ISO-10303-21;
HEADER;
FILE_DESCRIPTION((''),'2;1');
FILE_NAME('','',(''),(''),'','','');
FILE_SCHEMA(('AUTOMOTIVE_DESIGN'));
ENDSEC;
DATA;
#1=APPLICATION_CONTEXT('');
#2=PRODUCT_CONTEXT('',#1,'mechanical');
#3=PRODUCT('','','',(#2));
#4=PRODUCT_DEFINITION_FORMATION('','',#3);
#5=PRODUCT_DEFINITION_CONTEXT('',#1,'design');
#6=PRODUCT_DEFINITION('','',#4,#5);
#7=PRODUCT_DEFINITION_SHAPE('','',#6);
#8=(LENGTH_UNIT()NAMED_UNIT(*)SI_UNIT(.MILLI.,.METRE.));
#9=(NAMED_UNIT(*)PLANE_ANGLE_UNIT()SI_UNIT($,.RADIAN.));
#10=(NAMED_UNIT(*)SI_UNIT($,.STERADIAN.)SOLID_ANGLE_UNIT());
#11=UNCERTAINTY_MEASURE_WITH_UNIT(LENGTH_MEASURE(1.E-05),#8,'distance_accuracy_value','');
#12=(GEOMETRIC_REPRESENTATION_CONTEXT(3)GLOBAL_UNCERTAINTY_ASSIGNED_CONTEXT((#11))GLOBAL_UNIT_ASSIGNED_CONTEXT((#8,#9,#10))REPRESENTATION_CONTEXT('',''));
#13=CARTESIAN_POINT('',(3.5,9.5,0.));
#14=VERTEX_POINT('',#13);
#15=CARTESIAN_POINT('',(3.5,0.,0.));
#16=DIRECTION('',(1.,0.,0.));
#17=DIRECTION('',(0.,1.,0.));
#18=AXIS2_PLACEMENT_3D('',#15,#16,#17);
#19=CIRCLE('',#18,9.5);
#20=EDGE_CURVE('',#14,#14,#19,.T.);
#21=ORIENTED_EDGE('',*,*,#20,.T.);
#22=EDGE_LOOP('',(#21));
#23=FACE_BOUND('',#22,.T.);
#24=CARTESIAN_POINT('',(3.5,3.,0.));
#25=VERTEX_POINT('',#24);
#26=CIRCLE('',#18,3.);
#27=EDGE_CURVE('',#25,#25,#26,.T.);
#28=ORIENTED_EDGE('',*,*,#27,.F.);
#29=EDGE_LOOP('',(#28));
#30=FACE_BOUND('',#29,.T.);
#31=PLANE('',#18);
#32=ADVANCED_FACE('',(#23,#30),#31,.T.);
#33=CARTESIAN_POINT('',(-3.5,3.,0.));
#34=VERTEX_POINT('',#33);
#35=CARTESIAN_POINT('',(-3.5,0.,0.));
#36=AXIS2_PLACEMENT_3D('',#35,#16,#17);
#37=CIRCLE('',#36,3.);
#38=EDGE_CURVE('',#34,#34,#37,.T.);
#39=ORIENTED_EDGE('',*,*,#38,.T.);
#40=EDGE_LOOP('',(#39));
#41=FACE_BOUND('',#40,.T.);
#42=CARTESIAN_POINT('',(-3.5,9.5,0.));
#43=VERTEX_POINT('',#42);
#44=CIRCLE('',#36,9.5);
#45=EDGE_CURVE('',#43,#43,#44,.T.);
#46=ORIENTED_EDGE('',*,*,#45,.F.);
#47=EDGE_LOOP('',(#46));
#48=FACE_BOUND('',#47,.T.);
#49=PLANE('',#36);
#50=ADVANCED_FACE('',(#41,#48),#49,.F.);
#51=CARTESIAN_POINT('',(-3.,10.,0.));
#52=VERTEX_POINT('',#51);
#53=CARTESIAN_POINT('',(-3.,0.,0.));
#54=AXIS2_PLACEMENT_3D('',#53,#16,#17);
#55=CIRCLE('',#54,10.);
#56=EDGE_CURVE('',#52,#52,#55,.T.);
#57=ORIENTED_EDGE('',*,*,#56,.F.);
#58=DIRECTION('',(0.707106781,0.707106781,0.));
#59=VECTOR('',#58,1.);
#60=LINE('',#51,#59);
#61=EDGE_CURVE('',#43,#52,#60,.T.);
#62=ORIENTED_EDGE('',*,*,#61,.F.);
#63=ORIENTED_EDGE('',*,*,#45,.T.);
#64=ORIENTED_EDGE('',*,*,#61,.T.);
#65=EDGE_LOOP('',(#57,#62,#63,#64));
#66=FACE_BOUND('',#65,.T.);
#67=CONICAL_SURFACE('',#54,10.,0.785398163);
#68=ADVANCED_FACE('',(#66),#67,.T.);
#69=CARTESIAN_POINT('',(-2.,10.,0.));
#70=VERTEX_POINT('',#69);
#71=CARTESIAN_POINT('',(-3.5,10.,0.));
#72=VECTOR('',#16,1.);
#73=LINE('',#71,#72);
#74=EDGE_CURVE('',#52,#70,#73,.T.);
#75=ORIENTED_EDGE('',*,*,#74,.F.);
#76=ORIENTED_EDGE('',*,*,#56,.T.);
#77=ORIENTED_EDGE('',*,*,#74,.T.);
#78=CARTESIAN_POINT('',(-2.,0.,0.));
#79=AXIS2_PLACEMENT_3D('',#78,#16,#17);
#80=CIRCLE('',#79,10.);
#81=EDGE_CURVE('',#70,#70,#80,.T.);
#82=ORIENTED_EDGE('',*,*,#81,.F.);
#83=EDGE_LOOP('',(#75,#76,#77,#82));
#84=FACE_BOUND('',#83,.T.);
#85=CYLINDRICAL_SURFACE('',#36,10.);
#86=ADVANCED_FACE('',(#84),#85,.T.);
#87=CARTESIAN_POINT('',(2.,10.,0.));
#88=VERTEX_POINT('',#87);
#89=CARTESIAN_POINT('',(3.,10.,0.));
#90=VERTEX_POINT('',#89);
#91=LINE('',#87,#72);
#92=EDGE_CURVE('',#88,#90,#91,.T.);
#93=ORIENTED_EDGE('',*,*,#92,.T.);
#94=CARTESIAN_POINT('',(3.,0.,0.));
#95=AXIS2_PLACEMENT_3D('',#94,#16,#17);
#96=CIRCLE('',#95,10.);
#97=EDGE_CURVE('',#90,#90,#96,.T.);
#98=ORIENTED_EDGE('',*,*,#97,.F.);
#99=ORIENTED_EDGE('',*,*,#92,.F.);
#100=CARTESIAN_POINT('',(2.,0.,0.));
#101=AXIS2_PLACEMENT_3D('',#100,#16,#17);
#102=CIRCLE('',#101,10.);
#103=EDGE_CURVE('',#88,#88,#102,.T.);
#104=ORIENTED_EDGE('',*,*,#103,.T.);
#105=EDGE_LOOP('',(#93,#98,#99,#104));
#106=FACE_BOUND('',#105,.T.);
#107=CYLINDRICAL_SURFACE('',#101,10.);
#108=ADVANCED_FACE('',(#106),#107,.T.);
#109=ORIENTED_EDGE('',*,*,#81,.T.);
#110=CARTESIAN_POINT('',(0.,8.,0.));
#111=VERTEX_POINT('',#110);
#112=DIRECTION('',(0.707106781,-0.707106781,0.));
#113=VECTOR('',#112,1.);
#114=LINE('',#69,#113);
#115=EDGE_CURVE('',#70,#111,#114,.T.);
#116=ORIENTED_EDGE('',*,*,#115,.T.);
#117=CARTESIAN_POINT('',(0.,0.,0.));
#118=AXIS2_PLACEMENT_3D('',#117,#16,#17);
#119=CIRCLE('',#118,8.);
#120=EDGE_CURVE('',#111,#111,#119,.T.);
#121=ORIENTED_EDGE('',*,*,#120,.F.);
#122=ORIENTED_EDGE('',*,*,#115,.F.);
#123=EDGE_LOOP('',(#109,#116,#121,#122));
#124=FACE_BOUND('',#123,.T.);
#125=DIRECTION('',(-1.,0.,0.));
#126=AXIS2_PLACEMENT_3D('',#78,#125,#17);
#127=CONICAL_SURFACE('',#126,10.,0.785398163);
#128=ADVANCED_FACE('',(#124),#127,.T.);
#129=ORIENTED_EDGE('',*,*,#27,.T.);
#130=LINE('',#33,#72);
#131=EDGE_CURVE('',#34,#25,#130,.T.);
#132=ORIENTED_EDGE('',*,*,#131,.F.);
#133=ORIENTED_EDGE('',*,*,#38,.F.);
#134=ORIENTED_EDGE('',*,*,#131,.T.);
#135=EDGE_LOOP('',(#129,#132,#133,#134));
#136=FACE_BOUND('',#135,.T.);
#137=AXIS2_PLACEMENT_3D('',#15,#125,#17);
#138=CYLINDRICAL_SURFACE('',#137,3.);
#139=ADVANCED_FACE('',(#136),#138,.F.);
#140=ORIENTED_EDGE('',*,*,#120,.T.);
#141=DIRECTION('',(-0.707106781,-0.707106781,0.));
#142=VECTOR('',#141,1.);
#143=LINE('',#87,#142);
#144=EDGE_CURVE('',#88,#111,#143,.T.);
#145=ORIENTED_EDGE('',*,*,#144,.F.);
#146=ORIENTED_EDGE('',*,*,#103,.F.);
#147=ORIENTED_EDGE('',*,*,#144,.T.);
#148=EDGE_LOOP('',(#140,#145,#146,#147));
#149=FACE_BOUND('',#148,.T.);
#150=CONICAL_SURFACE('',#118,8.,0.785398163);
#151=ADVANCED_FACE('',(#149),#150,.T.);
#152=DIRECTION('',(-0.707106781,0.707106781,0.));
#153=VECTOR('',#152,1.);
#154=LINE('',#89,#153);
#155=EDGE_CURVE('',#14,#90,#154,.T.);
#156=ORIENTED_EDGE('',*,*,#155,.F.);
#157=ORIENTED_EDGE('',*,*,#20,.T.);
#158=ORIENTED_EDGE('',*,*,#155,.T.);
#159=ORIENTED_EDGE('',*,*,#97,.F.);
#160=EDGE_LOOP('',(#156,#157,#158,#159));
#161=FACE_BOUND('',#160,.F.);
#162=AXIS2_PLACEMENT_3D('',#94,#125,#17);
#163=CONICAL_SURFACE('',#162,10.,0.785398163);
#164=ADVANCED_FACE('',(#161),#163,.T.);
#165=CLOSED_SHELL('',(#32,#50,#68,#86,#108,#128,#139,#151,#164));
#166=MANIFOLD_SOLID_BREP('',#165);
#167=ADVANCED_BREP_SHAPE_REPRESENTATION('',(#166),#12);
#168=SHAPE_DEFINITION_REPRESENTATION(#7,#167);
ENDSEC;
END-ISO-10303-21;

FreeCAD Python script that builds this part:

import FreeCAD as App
import Part
import Sketcher

V = App.Vector


def edges_at(feature, points):
    """Names of the edges that pass closest to the given points."""
    edges = feature.Shape.Edges
    near = lambda p: min(range(len(edges)), key=lambda i: edges[i].distToShape(Part.Vertex(*p))[0])
    return sorted({f"Edge{near(p) + 1}" for p in points})


def add_polygon(sketch, points):
    """Adds a closed chain of lines whose ends are joined by coincident constraints."""
    first, n = sketch.GeometryCount, len(points)
    for a, b in zip(points, points[1:] + points[:1]):
        sketch.addGeometry(Part.LineSegment(App.Vector(*a, 0), App.Vector(*b, 0)), False)
    for i in range(n):
        sketch.addConstraint(Sketcher.Constraint("Coincident", first + i, 2, first + (i + 1) % n, 1))

doc = App.newDocument("Part")
params = doc.addObject("Spreadsheet::Sheet", "Params")
for row, (alias, value) in enumerate([
    ("sketch1_width", "7 mm"),
    ("sketch1_width2", "1.5 mm"),
    ("revolution_angle", "360 deg"),
    ("chamfer_size", "0.5 mm"),
], start=1):
    params.set(f"A{row}", alias)
    params.set(f"B{row}", "=" + value)
    params.setAlias(f"B{row}", alias)

body = doc.addObject("PartDesign::Body", "Body")

# Sketch on XY plane
sketch1 = doc.addObject("Sketcher::SketchObject", "Sketch")
body.addObject(sketch1)
sketch1.AttachmentSupport = (doc.XY_Plane, [""])
sketch1.MapMode = "FlatFace"
add_polygon(sketch1, [(-3.5, 3), (3.5, 3), (3.5, 10), (2, 10), (0, 8), (-2, 10), (-3.5, 10)])  # lines 0-6
sketch1.addConstraint(Sketcher.Constraint("Horizontal", 0))
sketch1.addConstraint(Sketcher.Constraint("Vertical", 1))
sketch1.addConstraint(Sketcher.Constraint("Horizontal", 2))
sketch1.addConstraint(Sketcher.Constraint("Horizontal", 5))
sketch1.addConstraint(Sketcher.Constraint("Vertical", 6))
sketch1.addConstraint(Sketcher.Constraint("Symmetric", 2, 2, 4, 2, -2))
sketch1.addConstraint(Sketcher.Constraint("PointOnObject", 3, 2, -2))
sketch1.addConstraint(Sketcher.Constraint("Perpendicular", 3, 4))
sketch1.addConstraint(Sketcher.Constraint("Equal", 2, 5))
sketch1.addConstraint(Sketcher.Constraint("Equal", 0, 1))
sketch1.addConstraint(Sketcher.Constraint("DistanceX", 0, 1, 0, 2, 7.0))
sketch1.addConstraint(Sketcher.Constraint("DistanceX", 2, 2, 2, 1, 1.5))
sketch1.addConstraint(Sketcher.Constraint("DistanceY", -1, 1, 0, 2, 3.0))
sketch1.setExpression("Constraints[17]", "Params.sketch1_width")
sketch1.setExpression("Constraints[18]", "Params.sketch1_width2")
revolution = doc.addObject("PartDesign::Revolution", "Revolution")
body.addObject(revolution)
revolution.Profile = sketch1
revolution.ReferenceAxis = (sketch1, ["H_Axis"])
revolution.setExpression("Angle", "Params.revolution_angle")
doc.recompute()

chamfer = doc.addObject("PartDesign::Chamfer", "Chamfer")
body.addObject(chamfer)
chamfer.Base = (revolution, edges_at(revolution, [(-3.5, -10, 0), (3.5, -10, 0)]))
chamfer.setExpression("Size", "Params.chamfer_size")

doc.recompute()
